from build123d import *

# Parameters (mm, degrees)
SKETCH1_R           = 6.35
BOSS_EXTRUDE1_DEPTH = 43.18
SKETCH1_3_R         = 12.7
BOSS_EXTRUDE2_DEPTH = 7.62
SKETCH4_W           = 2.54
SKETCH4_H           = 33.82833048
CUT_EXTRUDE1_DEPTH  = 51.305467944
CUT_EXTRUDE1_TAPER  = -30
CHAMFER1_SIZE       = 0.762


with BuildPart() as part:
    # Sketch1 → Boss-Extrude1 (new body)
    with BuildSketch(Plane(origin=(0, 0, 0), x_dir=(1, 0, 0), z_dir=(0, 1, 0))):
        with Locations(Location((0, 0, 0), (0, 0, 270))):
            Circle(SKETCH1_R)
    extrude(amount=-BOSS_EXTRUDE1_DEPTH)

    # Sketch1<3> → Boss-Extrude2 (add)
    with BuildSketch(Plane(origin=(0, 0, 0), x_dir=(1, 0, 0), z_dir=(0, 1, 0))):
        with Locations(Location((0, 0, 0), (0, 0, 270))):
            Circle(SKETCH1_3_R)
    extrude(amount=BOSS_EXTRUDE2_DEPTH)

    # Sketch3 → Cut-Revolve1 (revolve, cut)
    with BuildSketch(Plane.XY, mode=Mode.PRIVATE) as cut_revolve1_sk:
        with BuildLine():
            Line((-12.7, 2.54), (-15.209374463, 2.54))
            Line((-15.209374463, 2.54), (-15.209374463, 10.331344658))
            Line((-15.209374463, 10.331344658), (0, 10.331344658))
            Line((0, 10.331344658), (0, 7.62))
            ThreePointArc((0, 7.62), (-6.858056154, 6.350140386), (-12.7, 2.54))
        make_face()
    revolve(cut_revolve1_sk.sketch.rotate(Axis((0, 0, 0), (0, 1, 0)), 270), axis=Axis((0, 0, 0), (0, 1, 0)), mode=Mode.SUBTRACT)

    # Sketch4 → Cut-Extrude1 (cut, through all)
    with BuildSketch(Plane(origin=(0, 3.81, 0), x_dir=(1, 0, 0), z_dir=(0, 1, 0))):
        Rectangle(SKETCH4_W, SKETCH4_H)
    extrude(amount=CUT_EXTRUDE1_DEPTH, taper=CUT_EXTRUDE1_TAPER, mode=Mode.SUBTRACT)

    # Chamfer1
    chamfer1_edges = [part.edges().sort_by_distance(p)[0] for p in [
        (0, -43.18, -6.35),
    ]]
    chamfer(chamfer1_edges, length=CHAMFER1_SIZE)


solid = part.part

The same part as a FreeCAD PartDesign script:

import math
import FreeCAD as App
import Part
import Sketcher

V = App.Vector
Q = App.Units.Quantity


def edges_at(feature, points):
    """Names of the edges that pass closest to the given points."""
    edges = feature.Shape.Edges
    near = lambda p: min(range(len(edges)), key=lambda i: edges[i].distToShape(Part.Vertex(*p))[0])
    return sorted({f"Edge{near(p) + 1}" for p in points})


def add_polygon(sketch, points):
    """Adds a closed chain of lines whose ends are joined by coincident constraints."""
    first, n = sketch.GeometryCount, len(points)
    for a, b in zip(points, points[1:] + points[:1]):
        sketch.addGeometry(Part.LineSegment(App.Vector(*a, 0), App.Vector(*b, 0)), False)
    for i in range(n):
        sketch.addConstraint(Sketcher.Constraint("Coincident", first + i, 2, first + (i + 1) % n, 1))

doc = App.newDocument("Part")
params = doc.addObject("Spreadsheet::Sheet", "Params")
for row, (alias, value) in enumerate([
    ("sketch1_diameter", "0.5 in"),
    ("pad1_length", "1.7 in"),
    ("sketch2_diameter", "1 in"),
    ("pad2_length", "0.3 in"),
    ("sketch3_radius", "0.7 in"),
    ("groove_angle", "360 deg"),
    ("sketch4_width", "0.1 in"),
    ("pocket1_taper", "30 deg"),
    ("chamfer_size", "0.03 in"),
], start=1):
    params.set(f"A{row}", alias)
    params.set(f"B{row}", "=" + value)
    params.setAlias(f"B{row}", alias)

body = doc.addObject("PartDesign::Body", "Body")

sketch1 = doc.addObject("Sketcher::SketchObject", "Sketch")
body.addObject(sketch1)
sketch1.AttachmentSupport = (doc.XZ_Plane, [""])
sketch1.MapMode = "FlatFace"
sketch1.addGeometry(Part.Circle(V(0, 0, 0), V(0, 0, 1), 6), False)
sketch1.addConstraint([
    Sketcher.Constraint("Coincident", 0, 3, -1, 1),
    Sketcher.Constraint("Diameter", 0, Q("0.5 in")),
])
sketch1.setExpression("Constraints[1]", "Params.sketch1_diameter")
pad1 = doc.addObject("PartDesign::Pad", "Pad")
body.addObject(pad1)
pad1.Profile = sketch1
pad1.setExpression("Length", "Params.pad1_length")

sketch2 = doc.addObject("Sketcher::SketchObject", "Sketch001")
body.addObject(sketch2)
sketch2.AttachmentSupport = (doc.XZ_Plane, [""])
sketch2.MapMode = "FlatFace"
sketch2.addGeometry(Part.Circle(V(0, 0, 0), V(0, 0, 1), 13), False)
sketch2.addConstraint([
    Sketcher.Constraint("Coincident", 0, 3, -1, 1),
    Sketcher.Constraint("Diameter", 0, Q("1 in")),
])
sketch2.setExpression("Constraints[1]", "Params.sketch2_diameter")
pad2 = doc.addObject("PartDesign::Pad", "Pad001")
body.addObject(pad2)
pad2.Profile = sketch2
pad2.setExpression("Length", "Params.pad2_length")
pad2.Reversed = True

sketch3 = doc.addObject("Sketcher::SketchObject", "Sketch002")
body.addObject(sketch3)
sketch3.AttachmentSupport = (doc.XY_Plane, [""])
sketch3.MapMode = "FlatFace"
sketch3.addGeometry([
    Part.LineSegment(V(-15.2, 2.5, 0), V(-12.7, 2.5, 0)),
    Part.ArcOfCircle(Part.Circle(V(-0.3, -10.2, 0), V(0, 0, 1), 17.8), math.radians(89), math.radians(134)),
    Part.LineSegment(V(0, 7.6, 0), V(0, 10.3, 0)),
    Part.LineSegment(V(0, 10.3, 0), V(-15.2, 10.3, 0)),
    Part.LineSegment(V(-15.2, 10.3, 0), V(-15.2, 2.5, 0)),
], False)
sketch3.addConstraint([
    Sketcher.Constraint("Coincident", 0, 2, 1, 2),
    Sketcher.Constraint("Coincident", 1, 1, 2, 1),
    Sketcher.Constraint("Coincident", 2, 2, 3, 1),
    Sketcher.Constraint("Coincident", 3, 2, 4, 1),
    Sketcher.Constraint("Coincident", 4, 2, 0, 1),
    Sketcher.Constraint("Horizontal", 0),
    Sketcher.Constraint("Vertical", 2),
    Sketcher.Constraint("Horizontal", 3),
    Sketcher.Constraint("Vertical", 4),
    Sketcher.Constraint("PointOnObject", 1, 1, -2),
    Sketcher.Constraint("Radius", 1, Q("0.7 in")),
    Sketcher.Constraint("DistanceX", 0, 2, -1, 1, Q("0.5 in")),
    Sketcher.Constraint("DistanceY", -1, 1, 0, 2, Q("0.1 in")),
    Sketcher.Constraint("DistanceY", -1, 1, 1, 1, Q("0.3 in")),
    Sketcher.Constraint("DistanceX", 0, 1, 0, 2, 2.509374),
    Sketcher.Constraint("DistanceY", 2, 1, 2, 2, 2.711345),
])
sketch3.setExpression("Constraints[10]", "Params.sketch3_radius")
groove = doc.addObject("PartDesign::Groove", "Groove")
body.addObject(groove)
groove.Profile = sketch3
groove.ReferenceAxis = (sketch3, ["V_Axis"])
groove.setExpression("Angle", "Params.groove_angle")

sketch4 = doc.addObject("Sketcher::SketchObject", "Sketch003")
body.addObject(sketch4)
sketch4.AttachmentSupport = (doc.XZ_Plane, [""])
sketch4.MapMode = "FlatFace"
sketch4.AttachmentOffset = App.Placement(V(0, 0, -0.15 * 25.4), App.Rotation())
add_polygon(sketch4, [(-1.3, -16.9), (-1.3, 16.9), (1.3, 16.9), (1.3, -16.9)])
sketch4.addConstraint([
    Sketcher.Constraint("Vertical", 0),
    Sketcher.Constraint("Horizontal", 1),
    Sketcher.Constraint("Vertical", 2),
    Sketcher.Constraint("Horizontal", 3),
    Sketcher.Constraint("Symmetric", 0, 2, 2, 2, -1, 1),
    Sketcher.Constraint("DistanceX", 1, 1, 1, 2, Q("0.1 in")),
    Sketcher.Constraint("DistanceY", 0, 1, 0, 2, 33.82833),
])
sketch4.setExpression("Constraints[9]", "Params.sketch4_width")
pocket1 = doc.addObject("PartDesign::Pocket", "Pocket")
body.addObject(pocket1)
pocket1.Profile = sketch4
pocket1.Type = "ThroughAll"
pocket1.setExpression("TaperAngle", "Params.pocket1_taper")
doc.recompute()

chamfer = doc.addObject("PartDesign::Chamfer", "Chamfer")
body.addObject(chamfer)
chamfer.Base = (pocket1, edges_at(pocket1, [(0, -43.18, -6.35)]))
chamfer.setExpression("Size", "Params.chamfer_size")

doc.recompute()
